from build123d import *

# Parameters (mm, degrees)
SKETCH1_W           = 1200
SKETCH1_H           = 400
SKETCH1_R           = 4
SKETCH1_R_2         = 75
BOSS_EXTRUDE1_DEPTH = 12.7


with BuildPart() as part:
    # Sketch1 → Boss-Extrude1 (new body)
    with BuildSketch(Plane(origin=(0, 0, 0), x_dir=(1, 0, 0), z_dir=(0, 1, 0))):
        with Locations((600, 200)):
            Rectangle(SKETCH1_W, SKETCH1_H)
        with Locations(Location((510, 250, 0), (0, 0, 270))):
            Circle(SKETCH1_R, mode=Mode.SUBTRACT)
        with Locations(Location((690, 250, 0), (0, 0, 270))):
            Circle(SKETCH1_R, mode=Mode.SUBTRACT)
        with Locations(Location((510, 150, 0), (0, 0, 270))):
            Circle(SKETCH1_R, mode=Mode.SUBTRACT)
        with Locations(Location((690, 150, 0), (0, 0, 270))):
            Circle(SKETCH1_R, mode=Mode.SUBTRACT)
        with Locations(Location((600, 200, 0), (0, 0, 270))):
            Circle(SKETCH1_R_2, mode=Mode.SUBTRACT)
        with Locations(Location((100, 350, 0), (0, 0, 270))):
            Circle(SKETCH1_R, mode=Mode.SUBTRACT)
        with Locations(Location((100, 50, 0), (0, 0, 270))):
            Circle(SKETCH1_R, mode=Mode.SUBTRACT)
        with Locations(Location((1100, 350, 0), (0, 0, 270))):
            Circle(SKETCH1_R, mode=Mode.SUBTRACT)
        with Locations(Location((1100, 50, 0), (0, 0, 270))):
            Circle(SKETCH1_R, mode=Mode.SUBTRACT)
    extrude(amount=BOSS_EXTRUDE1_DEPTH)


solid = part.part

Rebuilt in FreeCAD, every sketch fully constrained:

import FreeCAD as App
import Part
import Sketcher
from FreeCAD import Vector
Q = App.Units.Quantity

doc = App.newDocument("Part")
body = doc.addObject("PartDesign::Body", "Body")

# Sketch on XZ plane
sketch1 = body.newObject("Sketcher::SketchObject", "Sketch")
sketch1.AttachmentSupport = (doc.getObject("XZ_Plane"), [""])
sketch1.MapMode = "FlatFace"
sketch1.addGeometry([
    Part.LineSegment(Vector(0, -400, 0), Vector(0, 0, 0)),  # 0
    Part.LineSegment(Vector(0, 0, 0), Vector(1200, 0, 0)),  # 1
    Part.LineSegment(Vector(1200, 0, 0), Vector(1200, -400, 0)),  # 2
    Part.LineSegment(Vector(1200, -400, 0), Vector(0, -400, 0)),  # 3
    Part.Circle(Vector(100, -50, 0), Vector(0, 0, 1), 4),  # 4
    Part.Circle(Vector(510, -150, 0), Vector(0, 0, 1), 4),  # 5
    Part.Circle(Vector(1100, -50, 0), Vector(0, 0, 1), 4),  # 6
    Part.Circle(Vector(690, -150, 0), Vector(0, 0, 1), 4),  # 7
    Part.Circle(Vector(510, -250, 0), Vector(0, 0, 1), 4),  # 8
    Part.Circle(Vector(100, -350, 0), Vector(0, 0, 1), 4),  # 9
    Part.Circle(Vector(600, -200, 0), Vector(0, 0, 1), 75),  # 10
    Part.Circle(Vector(690, -250, 0), Vector(0, 0, 1), 4),  # 11
    Part.Circle(Vector(1100, -350, 0), Vector(0, 0, 1), 4),  # 12
], False)
sketch1.addConstraint([
    Sketcher.Constraint("Coincident", 0, 2, 1, 1),
    Sketcher.Constraint("Coincident", 1, 2, 2, 1),
    Sketcher.Constraint("Coincident", 2, 2, 3, 1),
    Sketcher.Constraint("Coincident", 3, 2, 0, 1),
    Sketcher.Constraint("Vertical", 0),
    Sketcher.Constraint("Horizontal", 1),
    Sketcher.Constraint("Vertical", 2),
    Sketcher.Constraint("Horizontal", 3),
    Sketcher.Constraint("Coincident", 0, 2, -1, 1),
    Sketcher.Constraint("Equal", 4, 5),
    Sketcher.Constraint("Equal", 5, 6),
    Sketcher.Constraint("Equal", 6, 7),
    Sketcher.Constraint("Equal", 7, 8),
    Sketcher.Constraint("Equal", 8, 9),
    Sketcher.Constraint("Equal", 9, 11),
    Sketcher.Constraint("Equal", 11, 12),
    Sketcher.Constraint("Horizontal", 4, 3, 6, 3),
    Sketcher.Constraint("Horizontal", 5, 3, 7, 3),
    Sketcher.Constraint("Horizontal", 8, 3, 11, 3),
    Sketcher.Constraint("Horizontal", 9, 3, 12, 3),
    Sketcher.Constraint("Vertical", 5, 3, 8, 3),
    Sketcher.Constraint("Vertical", 4, 3, 9, 3),
    Sketcher.Constraint("Vertical", 7, 3, 11, 3),
    Sketcher.Constraint("Vertical", 6, 3, 12, 3),
    Sketcher.Constraint("Diameter", 4, Q("8 mm")),
    Sketcher.Constraint("Diameter", 10, Q("150 mm")),
    Sketcher.Constraint("DistanceX", 1, 1, 1, 2, Q("1200 mm")),
    Sketcher.Constraint("DistanceY", 0, 1, 0, 2, Q("400 mm")),
    Sketcher.Constraint("DistanceX", -1, 1, 4, 3, Q("100 mm")),
    Sketcher.Constraint("DistanceY", 4, 3, -1, 1, Q("50 mm")),
    Sketcher.Constraint("DistanceX", -1, 1, 5, 3, Q("510 mm")),
    Sketcher.Constraint("DistanceY", 5, 3, -1, 1, Q("150 mm")),
    Sketcher.Constraint("DistanceX", -1, 1, 6, 3, Q("1100 mm")),
    Sketcher.Constraint("DistanceX", -1, 1, 7, 3, Q("690 mm")),
    Sketcher.Constraint("DistanceY", 8, 3, -1, 1, Q("250 mm")),
    Sketcher.Constraint("DistanceY", 9, 3, -1, 1, Q("350 mm")),
    Sketcher.Constraint("DistanceX", -1, 1, 10, 3, Q("600 mm")),
    Sketcher.Constraint("DistanceY", 10, 3, -1, 1, Q("200 mm")),
])
pad1 = body.newObject("PartDesign::Pad", "Pad")
pad1.Profile = sketch1
pad1.Length = 12.7
pad1.Reversed = True

doc.recompute()
